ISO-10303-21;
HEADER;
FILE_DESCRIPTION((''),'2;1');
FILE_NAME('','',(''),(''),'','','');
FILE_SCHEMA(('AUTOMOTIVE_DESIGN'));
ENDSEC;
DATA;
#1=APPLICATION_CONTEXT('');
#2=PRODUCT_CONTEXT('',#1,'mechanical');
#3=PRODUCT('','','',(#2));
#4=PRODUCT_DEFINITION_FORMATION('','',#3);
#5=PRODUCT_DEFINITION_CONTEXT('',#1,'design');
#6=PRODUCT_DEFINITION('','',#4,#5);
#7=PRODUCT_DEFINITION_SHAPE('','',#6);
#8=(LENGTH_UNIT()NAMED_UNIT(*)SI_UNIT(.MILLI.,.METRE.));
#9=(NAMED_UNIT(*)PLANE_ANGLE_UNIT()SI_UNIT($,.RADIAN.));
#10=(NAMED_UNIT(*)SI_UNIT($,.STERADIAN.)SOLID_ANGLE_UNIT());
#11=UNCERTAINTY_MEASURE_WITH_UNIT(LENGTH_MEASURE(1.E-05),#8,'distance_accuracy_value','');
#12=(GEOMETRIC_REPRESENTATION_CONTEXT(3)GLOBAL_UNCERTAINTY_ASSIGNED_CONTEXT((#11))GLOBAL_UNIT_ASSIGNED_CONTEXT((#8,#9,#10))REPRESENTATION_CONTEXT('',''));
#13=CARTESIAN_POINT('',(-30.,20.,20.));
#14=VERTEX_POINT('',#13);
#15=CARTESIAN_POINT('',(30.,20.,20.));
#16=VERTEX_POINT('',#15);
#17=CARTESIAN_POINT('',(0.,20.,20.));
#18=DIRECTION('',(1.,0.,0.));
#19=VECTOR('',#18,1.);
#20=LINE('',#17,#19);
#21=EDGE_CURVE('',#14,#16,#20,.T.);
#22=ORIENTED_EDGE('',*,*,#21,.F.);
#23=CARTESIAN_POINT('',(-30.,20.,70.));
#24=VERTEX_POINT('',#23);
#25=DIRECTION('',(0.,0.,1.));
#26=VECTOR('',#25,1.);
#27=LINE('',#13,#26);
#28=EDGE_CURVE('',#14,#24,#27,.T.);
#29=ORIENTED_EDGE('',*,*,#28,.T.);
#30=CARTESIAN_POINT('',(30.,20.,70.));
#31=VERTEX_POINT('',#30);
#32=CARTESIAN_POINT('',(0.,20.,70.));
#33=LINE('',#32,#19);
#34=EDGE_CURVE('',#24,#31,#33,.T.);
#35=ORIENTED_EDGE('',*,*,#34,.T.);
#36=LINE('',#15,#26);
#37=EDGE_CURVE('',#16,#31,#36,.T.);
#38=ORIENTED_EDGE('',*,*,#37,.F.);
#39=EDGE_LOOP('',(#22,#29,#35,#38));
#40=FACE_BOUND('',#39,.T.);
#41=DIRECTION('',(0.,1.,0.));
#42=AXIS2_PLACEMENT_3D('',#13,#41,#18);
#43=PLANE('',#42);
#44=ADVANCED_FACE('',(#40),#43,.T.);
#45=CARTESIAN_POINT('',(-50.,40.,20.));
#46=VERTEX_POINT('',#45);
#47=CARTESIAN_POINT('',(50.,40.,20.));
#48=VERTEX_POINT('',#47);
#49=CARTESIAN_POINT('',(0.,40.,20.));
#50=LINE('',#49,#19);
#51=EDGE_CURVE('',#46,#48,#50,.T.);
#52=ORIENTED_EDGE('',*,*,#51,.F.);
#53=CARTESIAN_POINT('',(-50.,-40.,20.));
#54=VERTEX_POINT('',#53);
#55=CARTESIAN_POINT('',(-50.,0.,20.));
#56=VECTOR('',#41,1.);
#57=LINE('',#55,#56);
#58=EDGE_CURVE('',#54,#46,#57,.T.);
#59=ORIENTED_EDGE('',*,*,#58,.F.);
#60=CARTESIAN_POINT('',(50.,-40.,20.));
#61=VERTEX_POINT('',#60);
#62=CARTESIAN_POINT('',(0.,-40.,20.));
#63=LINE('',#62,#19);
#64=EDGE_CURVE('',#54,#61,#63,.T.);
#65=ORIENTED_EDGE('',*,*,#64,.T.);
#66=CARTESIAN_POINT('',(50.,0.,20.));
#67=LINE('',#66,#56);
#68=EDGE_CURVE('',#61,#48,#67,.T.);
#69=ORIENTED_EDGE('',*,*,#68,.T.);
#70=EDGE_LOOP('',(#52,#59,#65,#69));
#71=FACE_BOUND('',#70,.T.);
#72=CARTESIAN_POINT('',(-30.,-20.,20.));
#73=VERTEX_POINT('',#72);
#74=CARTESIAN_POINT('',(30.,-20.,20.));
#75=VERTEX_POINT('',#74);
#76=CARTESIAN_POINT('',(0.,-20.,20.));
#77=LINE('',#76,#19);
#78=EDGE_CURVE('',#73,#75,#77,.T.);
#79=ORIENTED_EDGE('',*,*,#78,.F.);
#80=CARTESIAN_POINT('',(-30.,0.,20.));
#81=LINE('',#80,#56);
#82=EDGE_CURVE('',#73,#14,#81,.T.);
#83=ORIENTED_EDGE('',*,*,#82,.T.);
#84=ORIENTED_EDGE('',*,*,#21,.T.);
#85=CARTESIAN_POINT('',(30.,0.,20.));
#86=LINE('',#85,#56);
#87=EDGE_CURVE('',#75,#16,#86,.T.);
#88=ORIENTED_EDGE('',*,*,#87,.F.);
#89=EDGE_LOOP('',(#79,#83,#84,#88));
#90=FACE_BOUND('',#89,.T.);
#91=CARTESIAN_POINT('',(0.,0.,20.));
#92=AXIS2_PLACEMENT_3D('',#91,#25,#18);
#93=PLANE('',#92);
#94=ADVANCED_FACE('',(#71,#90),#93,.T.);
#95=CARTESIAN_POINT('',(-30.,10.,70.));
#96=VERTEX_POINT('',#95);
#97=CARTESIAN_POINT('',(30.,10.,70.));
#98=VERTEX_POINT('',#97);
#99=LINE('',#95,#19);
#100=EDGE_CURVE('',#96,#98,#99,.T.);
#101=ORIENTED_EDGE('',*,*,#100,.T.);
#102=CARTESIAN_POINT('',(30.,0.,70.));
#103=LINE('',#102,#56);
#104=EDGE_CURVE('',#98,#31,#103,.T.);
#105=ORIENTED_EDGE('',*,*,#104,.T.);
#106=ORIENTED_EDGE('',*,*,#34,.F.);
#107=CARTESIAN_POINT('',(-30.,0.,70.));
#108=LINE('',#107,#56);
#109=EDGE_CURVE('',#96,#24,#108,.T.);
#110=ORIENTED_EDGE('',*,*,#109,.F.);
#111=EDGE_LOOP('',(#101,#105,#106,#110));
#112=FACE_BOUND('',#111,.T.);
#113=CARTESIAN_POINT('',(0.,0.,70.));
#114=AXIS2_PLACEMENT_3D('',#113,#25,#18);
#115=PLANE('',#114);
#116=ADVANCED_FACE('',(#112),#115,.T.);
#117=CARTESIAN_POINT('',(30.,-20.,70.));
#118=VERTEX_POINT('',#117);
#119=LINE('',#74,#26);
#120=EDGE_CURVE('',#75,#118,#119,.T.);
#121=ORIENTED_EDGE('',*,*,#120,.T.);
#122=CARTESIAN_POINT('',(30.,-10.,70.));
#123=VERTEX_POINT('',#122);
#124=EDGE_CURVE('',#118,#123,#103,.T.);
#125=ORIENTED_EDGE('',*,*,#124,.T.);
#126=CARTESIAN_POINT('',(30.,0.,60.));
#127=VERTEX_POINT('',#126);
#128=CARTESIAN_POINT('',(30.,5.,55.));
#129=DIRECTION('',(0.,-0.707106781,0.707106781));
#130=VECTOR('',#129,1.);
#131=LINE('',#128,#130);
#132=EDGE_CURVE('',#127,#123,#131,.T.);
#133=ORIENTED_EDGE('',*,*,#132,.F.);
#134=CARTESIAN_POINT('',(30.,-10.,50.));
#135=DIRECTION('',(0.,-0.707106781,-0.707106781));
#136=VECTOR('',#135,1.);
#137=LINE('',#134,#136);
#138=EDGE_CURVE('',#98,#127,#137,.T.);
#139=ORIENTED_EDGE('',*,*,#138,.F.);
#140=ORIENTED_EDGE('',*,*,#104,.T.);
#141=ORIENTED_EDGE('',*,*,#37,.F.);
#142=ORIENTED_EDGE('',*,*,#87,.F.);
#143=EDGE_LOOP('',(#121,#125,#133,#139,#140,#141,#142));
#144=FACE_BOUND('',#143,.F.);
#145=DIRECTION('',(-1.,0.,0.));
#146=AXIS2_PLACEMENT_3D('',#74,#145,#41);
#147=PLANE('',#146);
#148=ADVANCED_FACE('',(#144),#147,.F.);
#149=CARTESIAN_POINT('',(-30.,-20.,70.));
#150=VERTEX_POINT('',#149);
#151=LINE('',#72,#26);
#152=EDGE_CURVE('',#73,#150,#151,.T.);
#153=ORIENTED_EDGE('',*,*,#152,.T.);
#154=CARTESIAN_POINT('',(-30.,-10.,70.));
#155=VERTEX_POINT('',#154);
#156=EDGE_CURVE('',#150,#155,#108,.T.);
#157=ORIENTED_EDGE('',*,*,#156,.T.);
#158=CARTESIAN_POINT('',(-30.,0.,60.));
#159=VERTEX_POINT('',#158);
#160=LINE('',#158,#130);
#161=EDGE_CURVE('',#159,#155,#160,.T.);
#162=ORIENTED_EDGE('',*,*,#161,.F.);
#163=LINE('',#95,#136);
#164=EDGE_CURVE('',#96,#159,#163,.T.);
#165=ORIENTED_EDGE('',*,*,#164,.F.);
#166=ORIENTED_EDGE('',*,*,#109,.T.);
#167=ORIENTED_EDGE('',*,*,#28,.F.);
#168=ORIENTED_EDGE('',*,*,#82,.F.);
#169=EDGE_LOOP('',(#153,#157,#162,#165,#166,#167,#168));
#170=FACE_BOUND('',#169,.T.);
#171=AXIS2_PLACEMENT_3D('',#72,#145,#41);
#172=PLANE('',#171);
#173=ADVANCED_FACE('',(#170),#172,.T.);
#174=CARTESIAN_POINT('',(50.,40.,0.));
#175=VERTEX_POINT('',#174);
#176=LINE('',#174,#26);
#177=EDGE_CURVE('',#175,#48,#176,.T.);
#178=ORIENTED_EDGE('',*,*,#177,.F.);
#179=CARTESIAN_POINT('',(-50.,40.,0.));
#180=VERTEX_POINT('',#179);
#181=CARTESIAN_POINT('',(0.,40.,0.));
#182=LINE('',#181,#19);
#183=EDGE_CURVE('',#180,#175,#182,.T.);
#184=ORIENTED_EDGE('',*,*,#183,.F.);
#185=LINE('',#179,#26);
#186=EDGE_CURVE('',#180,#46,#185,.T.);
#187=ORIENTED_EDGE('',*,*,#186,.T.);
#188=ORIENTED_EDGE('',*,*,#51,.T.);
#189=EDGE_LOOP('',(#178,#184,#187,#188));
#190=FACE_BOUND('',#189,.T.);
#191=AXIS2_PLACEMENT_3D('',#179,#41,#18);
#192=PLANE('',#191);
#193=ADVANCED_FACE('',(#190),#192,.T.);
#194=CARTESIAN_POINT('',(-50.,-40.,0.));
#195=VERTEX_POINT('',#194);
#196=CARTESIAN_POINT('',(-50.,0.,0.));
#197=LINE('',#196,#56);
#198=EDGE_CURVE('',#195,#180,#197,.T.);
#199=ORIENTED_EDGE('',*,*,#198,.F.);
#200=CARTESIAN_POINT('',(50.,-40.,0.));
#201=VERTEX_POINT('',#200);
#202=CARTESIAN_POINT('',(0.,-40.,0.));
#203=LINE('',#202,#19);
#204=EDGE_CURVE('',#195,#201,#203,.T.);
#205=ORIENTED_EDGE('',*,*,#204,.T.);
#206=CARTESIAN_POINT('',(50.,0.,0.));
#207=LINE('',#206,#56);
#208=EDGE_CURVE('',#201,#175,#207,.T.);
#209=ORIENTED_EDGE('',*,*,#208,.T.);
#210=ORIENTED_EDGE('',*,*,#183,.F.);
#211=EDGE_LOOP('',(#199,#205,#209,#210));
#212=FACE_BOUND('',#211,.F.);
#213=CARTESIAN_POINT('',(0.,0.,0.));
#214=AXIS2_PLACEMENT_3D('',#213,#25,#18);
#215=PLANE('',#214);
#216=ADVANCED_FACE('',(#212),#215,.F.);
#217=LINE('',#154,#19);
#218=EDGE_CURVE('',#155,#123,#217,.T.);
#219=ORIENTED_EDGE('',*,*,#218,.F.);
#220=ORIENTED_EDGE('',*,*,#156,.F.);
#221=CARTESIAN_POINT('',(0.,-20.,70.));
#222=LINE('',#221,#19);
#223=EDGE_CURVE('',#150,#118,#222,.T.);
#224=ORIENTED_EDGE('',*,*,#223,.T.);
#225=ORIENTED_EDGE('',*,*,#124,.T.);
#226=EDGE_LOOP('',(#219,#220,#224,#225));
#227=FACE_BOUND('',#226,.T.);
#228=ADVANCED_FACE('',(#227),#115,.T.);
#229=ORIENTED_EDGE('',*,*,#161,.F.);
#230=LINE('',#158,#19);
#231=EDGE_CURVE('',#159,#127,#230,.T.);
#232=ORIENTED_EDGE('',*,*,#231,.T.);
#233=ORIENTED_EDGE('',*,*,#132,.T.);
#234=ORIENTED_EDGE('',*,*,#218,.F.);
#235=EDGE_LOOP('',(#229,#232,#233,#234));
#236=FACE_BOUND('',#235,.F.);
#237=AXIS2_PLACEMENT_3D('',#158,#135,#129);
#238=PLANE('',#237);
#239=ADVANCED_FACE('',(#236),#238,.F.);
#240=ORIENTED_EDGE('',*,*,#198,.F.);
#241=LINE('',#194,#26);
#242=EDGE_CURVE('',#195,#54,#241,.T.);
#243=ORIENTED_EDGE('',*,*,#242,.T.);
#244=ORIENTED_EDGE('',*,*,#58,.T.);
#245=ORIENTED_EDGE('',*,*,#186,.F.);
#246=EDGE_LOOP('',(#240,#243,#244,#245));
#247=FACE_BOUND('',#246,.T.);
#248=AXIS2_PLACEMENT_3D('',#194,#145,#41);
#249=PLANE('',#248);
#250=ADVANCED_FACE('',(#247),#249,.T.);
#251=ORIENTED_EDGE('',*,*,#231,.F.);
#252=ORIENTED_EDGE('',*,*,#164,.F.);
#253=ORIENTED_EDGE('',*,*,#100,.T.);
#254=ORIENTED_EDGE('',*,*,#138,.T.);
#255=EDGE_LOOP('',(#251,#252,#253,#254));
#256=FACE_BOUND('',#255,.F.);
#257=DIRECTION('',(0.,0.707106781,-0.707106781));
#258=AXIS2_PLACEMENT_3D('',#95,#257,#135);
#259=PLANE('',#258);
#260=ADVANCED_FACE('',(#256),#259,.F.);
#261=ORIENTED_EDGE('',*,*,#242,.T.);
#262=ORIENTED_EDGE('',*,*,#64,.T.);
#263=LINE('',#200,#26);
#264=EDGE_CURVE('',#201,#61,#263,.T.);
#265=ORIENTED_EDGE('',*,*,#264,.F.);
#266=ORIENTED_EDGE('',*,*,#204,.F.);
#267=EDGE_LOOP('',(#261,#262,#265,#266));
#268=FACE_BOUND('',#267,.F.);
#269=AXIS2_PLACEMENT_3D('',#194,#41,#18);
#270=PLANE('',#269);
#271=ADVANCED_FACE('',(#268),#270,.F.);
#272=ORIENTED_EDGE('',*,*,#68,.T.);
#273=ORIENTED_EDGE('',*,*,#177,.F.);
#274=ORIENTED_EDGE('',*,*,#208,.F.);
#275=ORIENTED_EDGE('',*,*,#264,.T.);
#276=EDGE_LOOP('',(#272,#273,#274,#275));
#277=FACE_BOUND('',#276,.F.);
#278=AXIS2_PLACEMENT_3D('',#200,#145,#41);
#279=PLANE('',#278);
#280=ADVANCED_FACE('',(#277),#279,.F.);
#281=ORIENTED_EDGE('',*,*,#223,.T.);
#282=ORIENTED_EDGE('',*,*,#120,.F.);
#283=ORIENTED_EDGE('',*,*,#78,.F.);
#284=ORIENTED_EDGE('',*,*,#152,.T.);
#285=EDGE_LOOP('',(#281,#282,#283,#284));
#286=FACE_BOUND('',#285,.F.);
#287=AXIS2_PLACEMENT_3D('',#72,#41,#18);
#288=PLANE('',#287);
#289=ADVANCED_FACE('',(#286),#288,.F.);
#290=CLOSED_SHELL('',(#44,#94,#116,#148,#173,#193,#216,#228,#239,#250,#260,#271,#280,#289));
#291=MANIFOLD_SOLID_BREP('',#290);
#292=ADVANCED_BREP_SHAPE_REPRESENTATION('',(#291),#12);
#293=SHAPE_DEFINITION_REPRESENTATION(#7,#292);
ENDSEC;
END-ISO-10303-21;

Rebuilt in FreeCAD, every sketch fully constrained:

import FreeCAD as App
import Part
import Sketcher
from FreeCAD import Vector


def add_polygon(sketch, points):
    """Adds a closed chain of lines whose ends are joined by coincident constraints."""
    first, n = sketch.GeometryCount, len(points)
    for a, b in zip(points, points[1:] + points[:1]):
        sketch.addGeometry(Part.LineSegment(App.Vector(*a, 0), App.Vector(*b, 0)), False)
    for i in range(n):
        sketch.addConstraint(Sketcher.Constraint("Coincident", first + i, 2, first + (i + 1) % n, 1))

doc = App.newDocument("Part")
params = doc.addObject("Spreadsheet::Sheet", "Params")
for row, (alias, value) in enumerate([
    ("sketch1_width", "100 mm"),
    ("sketch1_height", "80 mm"),
    ("pad1_length", "20 mm"),
    ("sketch2_width", "60 mm"),
    ("sketch2_height", "40 mm"),
    ("pad2_length", "50 mm"),
    ("sketch3_width", "20 mm"),
    ("pocket1_length", "81 mm"),
], start=1):
    params.set(f"A{row}", alias)
    params.set(f"B{row}", "=" + value)
    params.setAlias(f"B{row}", alias)

body = doc.addObject("PartDesign::Body", "Body")

# Sketch on XY plane
sketch1 = body.newObject("Sketcher::SketchObject", "Sketch")
sketch1.AttachmentSupport = (doc.getObject("XY_Plane"), [""])
sketch1.MapMode = "FlatFace"
add_polygon(sketch1, [(-50, 40), (-50, -40), (50, -40), (50, 40)])  # lines 0-3
sketch1.addConstraint([
    Sketcher.Constraint("Vertical", 0),
    Sketcher.Constraint("Horizontal", 1),
    Sketcher.Constraint("Vertical", 2),
    Sketcher.Constraint("Horizontal", 3),
    Sketcher.Constraint("Symmetric", 0, 2, 2, 2, -1, 1),
    Sketcher.Constraint("DistanceX", 1, 1, 1, 2, 100.0),
    Sketcher.Constraint("DistanceY", 0, 2, 0, 1, 80.0),
])
sketch1.setExpression("Constraints[9]", "Params.sketch1_width")
sketch1.setExpression("Constraints[10]", "Params.sketch1_height")
pad1 = body.newObject("PartDesign::Pad", "Pad")
pad1.Profile = sketch1
pad1.setExpression("Length", "Params.pad1_length")

# Sketch on XY plane
sketch2 = body.newObject("Sketcher::SketchObject", "Sketch001")
sketch2.AttachmentSupport = (doc.getObject("XY_Plane"), [""])
sketch2.MapMode = "FlatFace"
sketch2.AttachmentOffset = App.Placement(Vector(0, 0, 20), App.Rotation())
add_polygon(sketch2, [(-30, 20), (-30, -20), (30, -20), (30, 20)])  # lines 0-3
sketch2.addConstraint([
    Sketcher.Constraint("Vertical", 0),
    Sketcher.Constraint("Horizontal", 1),
    Sketcher.Constraint("Vertical", 2),
    Sketcher.Constraint("Horizontal", 3),
    Sketcher.Constraint("Symmetric", 0, 2, 2, 2, -1, 1),
    Sketcher.Constraint("DistanceX", 1, 1, 1, 2, 60.0),
    Sketcher.Constraint("DistanceY", 0, 2, 0, 1, 40.0),
])
sketch2.setExpression("Constraints[9]", "Params.sketch2_width")
sketch2.setExpression("Constraints[10]", "Params.sketch2_height")
pad2 = body.newObject("PartDesign::Pad", "Pad001")
pad2.Profile = sketch2
pad2.setExpression("Length", "Params.pad2_length")

# Sketch on YZ plane
sketch3 = body.newObject("Sketcher::SketchObject", "Sketch002")
sketch3.AttachmentSupport = (doc.getObject("YZ_Plane"), [""])
sketch3.MapMode = "FlatFace"
sketch3.AttachmentOffset = App.Placement(Vector(0, 0, -30), App.Rotation())
add_polygon(sketch3, [(-10, 70), (10, 70), (0, 60)])  # lines 0-2
sketch3.addConstraint([
    Sketcher.Constraint("Horizontal", 0),
    Sketcher.Constraint("PointOnObject", 1, 2, -2),
    Sketcher.Constraint("Perpendicular", 1, 2),
    Sketcher.Constraint("Equal", 1, 2),
    Sketcher.Constraint("DistanceX", 0, 1, 0, 2, 20.0),
    Sketcher.Constraint("DistanceY", -1, 1, 0, 2, 70.0),
])
sketch3.setExpression("Constraints[7]", "Params.sketch3_width")
pocket1 = body.newObject("PartDesign::Pocket", "Pocket")
pocket1.Profile = sketch3
pocket1.setExpression("Length", "Params.pocket1_length")
pocket1.Reversed = True

doc.recompute()
